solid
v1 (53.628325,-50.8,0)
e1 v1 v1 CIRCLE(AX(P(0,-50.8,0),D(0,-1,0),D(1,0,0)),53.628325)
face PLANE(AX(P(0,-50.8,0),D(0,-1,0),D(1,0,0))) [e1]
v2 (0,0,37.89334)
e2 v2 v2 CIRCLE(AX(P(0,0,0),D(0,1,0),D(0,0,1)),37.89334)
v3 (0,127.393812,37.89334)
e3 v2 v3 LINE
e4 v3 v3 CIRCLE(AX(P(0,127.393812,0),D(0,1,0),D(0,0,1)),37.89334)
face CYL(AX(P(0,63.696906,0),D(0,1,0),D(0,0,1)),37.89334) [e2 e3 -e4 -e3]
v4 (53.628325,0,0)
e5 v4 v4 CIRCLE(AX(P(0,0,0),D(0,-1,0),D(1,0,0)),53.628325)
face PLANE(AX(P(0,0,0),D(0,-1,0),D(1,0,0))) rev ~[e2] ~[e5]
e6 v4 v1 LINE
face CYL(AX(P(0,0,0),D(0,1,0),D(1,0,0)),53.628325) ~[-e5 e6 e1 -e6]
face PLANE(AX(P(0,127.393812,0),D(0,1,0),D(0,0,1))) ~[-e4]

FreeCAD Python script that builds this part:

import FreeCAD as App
import Part
import Sketcher

V = App.Vector
Q = App.Units.Quantity

doc = App.newDocument("Part")
body = doc.addObject("PartDesign::Body", "Body")

sketch1 = body.newObject("Sketcher::SketchObject", "Sketch")
sketch1.AttachmentSupport = (doc.getObject("XZ_Plane"), [""])
sketch1.MapMode = "FlatFace"
sketch1.addGeometry(Part.Circle(V(0, 0, 0), V(0, 0, 1), 54), False)
sketch1.addConstraint([
    Sketcher.Constraint("Coincident", 0, 3, -1, 1),
    Sketcher.Constraint("Diameter", 0, Q("107.25665 mm")),
])
pad1 = body.newObject("PartDesign::Pad", "Pad")
pad1.Profile = sketch1
pad1.Length = Q("2 in")

sketch2 = body.newObject("Sketcher::SketchObject", "Sketch001")
sketch2.AttachmentSupport = (doc.getObject("YZ_Plane"), [""])
sketch2.MapMode = "FlatFace"
sketch2.addGeometry([
    Part.LineSegment(V(0, 38, 0), V(0, 0, 0)),
    Part.LineSegment(V(0, 0, 0), V(127, 0, 0)),
    Part.LineSegment(V(127, 0, 0), V(127, 38, 0)),
    Part.LineSegment(V(127, 38, 0), V(0, 38, 0)),
], False)
sketch2.addConstraint([
    Sketcher.Constraint("Coincident", 0, 2, 1, 1),
    Sketcher.Constraint("Coincident", 1, 2, 2, 1),
    Sketcher.Constraint("Coincident", 2, 2, 3, 1),
    Sketcher.Constraint("Coincident", 3, 2, 0, 1),
    Sketcher.Constraint("Vertical", 0),
    Sketcher.Constraint("Horizontal", 1),
    Sketcher.Constraint("Vertical", 2),
    Sketcher.Constraint("Horizontal", 3),
    Sketcher.Constraint("Coincident", 0, 2, -1, 1),
    Sketcher.Constraint("DistanceX", 1, 1, 1, 2, Q("127.393812 mm")),
    Sketcher.Constraint("DistanceY", 0, 2, 0, 1, Q("37.89334 mm")),
])
revolution = body.newObject("PartDesign::Revolution", "Revolution")
revolution.Profile = sketch2
revolution.ReferenceAxis = (sketch2, ["H_Axis"])
revolution.Angle = 360

doc.recompute()
